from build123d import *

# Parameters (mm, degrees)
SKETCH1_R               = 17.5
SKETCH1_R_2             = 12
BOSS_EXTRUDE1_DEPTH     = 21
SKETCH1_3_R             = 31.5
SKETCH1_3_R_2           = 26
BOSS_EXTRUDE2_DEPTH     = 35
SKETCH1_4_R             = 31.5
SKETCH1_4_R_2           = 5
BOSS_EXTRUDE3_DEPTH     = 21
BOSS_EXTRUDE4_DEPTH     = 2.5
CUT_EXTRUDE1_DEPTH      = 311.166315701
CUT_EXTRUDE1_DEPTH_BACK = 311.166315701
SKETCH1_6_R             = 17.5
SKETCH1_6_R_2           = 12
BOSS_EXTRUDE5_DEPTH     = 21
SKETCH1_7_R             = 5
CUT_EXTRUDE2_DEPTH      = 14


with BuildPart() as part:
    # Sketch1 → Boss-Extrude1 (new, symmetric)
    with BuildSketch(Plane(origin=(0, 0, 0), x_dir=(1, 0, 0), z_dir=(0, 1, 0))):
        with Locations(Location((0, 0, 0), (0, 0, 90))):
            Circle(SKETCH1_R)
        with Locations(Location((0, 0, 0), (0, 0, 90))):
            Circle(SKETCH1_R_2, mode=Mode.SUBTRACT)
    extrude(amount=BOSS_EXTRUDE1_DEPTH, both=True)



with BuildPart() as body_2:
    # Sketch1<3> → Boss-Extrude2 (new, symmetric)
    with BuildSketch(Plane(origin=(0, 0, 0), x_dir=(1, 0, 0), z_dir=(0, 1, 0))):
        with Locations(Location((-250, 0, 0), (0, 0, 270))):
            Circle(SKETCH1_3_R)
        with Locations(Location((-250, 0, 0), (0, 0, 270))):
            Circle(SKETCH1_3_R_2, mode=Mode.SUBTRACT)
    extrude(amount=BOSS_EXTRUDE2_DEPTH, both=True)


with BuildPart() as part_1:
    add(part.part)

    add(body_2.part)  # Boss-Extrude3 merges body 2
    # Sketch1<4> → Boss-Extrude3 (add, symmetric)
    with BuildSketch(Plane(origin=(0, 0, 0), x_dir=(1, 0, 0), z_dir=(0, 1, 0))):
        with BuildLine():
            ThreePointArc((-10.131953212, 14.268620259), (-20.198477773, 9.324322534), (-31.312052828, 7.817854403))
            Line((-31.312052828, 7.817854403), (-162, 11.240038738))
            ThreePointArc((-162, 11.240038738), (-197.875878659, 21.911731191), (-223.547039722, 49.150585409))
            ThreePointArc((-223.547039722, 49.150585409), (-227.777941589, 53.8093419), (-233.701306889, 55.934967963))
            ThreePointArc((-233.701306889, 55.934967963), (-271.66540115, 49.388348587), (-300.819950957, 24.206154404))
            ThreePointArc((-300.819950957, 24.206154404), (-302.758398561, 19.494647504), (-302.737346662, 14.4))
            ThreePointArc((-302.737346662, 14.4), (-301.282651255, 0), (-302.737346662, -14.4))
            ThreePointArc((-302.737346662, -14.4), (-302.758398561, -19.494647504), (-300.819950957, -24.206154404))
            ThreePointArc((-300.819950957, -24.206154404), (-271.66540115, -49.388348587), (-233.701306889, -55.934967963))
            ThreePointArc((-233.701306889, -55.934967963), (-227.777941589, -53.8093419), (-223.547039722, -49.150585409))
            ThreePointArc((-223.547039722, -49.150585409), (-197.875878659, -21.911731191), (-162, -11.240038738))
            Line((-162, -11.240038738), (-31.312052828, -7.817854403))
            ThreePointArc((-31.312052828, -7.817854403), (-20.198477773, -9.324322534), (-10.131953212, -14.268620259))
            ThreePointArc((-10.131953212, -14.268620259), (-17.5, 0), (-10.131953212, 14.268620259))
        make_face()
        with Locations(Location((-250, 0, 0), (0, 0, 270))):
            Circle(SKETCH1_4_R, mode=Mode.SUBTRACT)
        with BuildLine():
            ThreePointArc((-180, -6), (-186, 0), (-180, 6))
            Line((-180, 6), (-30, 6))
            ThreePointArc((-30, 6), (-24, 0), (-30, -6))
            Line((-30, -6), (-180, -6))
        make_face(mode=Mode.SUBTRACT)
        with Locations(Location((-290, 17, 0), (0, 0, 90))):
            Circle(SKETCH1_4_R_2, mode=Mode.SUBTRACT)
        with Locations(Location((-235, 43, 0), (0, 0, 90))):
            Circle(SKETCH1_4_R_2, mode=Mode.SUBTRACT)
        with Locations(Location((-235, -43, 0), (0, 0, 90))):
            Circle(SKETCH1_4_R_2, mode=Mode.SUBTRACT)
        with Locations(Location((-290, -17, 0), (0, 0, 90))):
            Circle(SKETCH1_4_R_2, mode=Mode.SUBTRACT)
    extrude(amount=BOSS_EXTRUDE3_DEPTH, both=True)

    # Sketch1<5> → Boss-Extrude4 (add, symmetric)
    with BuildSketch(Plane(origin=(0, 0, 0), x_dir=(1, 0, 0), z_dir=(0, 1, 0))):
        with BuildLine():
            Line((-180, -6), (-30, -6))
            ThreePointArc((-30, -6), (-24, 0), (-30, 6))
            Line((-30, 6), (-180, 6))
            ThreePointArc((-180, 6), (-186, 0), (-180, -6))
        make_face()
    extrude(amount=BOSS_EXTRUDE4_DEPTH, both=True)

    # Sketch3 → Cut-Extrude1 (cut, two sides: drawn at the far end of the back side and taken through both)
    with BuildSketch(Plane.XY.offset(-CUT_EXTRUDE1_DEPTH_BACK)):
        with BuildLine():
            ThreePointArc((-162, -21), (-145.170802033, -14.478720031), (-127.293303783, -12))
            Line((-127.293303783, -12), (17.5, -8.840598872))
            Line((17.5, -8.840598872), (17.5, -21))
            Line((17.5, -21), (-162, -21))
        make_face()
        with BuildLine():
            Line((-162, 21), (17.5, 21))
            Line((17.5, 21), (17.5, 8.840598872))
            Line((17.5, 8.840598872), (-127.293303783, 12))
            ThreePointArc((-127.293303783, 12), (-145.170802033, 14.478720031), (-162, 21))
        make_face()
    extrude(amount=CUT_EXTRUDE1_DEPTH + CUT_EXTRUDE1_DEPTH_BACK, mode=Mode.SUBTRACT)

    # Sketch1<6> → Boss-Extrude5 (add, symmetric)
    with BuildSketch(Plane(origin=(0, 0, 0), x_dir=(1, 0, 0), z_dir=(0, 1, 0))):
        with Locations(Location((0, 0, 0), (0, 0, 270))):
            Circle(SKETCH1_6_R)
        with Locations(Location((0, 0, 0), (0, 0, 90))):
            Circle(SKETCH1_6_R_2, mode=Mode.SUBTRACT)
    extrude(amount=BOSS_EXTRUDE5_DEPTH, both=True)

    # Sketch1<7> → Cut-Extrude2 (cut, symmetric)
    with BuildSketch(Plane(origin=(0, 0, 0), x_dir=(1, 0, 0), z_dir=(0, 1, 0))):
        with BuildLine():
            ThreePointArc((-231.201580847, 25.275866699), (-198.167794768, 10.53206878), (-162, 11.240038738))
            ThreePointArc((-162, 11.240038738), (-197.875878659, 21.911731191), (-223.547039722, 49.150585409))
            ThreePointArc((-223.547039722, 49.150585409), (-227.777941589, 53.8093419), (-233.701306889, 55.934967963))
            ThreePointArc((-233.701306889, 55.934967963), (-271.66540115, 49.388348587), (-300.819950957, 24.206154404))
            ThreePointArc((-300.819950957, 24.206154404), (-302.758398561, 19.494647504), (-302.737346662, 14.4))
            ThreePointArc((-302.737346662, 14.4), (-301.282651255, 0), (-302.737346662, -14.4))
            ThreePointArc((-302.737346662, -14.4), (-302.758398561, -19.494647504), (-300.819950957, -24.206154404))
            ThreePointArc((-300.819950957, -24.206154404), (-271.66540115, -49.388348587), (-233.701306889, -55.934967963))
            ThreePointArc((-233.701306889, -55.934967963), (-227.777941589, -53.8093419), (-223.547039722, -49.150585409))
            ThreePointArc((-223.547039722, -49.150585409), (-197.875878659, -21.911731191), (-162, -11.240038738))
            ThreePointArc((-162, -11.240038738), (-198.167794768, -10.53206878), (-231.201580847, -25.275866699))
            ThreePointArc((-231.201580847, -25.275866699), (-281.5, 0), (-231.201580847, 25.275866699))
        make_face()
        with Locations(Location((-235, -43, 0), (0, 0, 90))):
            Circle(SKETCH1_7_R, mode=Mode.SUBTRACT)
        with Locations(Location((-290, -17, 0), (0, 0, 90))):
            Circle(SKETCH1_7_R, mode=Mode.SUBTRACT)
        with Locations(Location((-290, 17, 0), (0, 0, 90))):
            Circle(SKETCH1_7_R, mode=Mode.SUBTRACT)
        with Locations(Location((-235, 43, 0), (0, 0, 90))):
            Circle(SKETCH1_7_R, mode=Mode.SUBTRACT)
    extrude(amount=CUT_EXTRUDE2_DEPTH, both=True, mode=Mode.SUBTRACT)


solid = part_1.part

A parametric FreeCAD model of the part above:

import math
import FreeCAD as App
import Part
import Sketcher
Q = App.Units.Quantity

doc = App.newDocument("Part")
body = doc.addObject("PartDesign::Body", "Body")

# Sketch on XZ plane
sketch1 = body.newObject("Sketcher::SketchObject", "Sketch")
sketch1.AttachmentSupport = (doc.getObject("XZ_Plane"), [""])
sketch1.MapMode = "FlatFace"
sketch1.addGeometry([
    Part.Circle(App.Vector(0, 0, 0), App.Vector(0, 0, 1), 17.5),
    Part.Circle(App.Vector(0, 0, 0), App.Vector(0, 0, 1), 12),
], False)
sketch1.addConstraint([
    Sketcher.Constraint("Coincident", 0, 3, -1, 1),
    Sketcher.Constraint("Coincident", 1, 3, -1, 1),
    Sketcher.Constraint("Diameter", 0, Q("35 mm")),
    Sketcher.Constraint("Diameter", 1, Q("24 mm")),
])
pad1 = body.newObject("PartDesign::Pad", "Pad")
pad1.Profile = sketch1
pad1.Length = 42
pad1.Midplane = True
body2 = doc.addObject("PartDesign::Body", "Body001")

# Sketch on XZ plane
sketch2 = body2.newObject("Sketcher::SketchObject", "Sketch001")
sketch2.AttachmentSupport = (doc.getObject("XZ_Plane001"), [""])
sketch2.MapMode = "FlatFace"
sketch2.addGeometry([
    Part.Circle(App.Vector(-250, 0, 0), App.Vector(0, 0, 1), 31.5),
    Part.Circle(App.Vector(-250, 0, 0), App.Vector(0, 0, 1), 26),
], False)
sketch2.addConstraint([
    Sketcher.Constraint("Coincident", 1, 3, 0, 3),
    Sketcher.Constraint("PointOnObject", 0, 3, -1),
    Sketcher.Constraint("Diameter", 0, Q("63 mm")),
    Sketcher.Constraint("Diameter", 1, Q("52 mm")),
    Sketcher.Constraint("DistanceX", 0, 3, -1, 1, Q("250 mm")),
])
pad2 = body2.newObject("PartDesign::Pad", "Pad001")
pad2.Profile = sketch2
pad2.Length = 70
pad2.Midplane = True
body.AllowCompound = True
doc.recompute()

boolean = body.newObject("PartDesign::Boolean", "Boolean")
boolean.Type = "Fuse"
boolean.addObjects([body2])

# Sketch on XZ plane
sketch3 = body.newObject("Sketcher::SketchObject", "Sketch002")
sketch3.AttachmentSupport = (doc.getObject("XZ_Plane"), [""])
sketch3.MapMode = "FlatFace"
sketch3.addGeometry([
    Part.ArcOfCircle(Part.Circle(App.Vector(-30.39586, -42.805861, 0), App.Vector(0, 0, 1), 35), math.radians(54.621957), math.radians(91.5)),  # 0
    Part.LineSegment(App.Vector(-31.312053, -7.817854, 0), App.Vector(-162, -11.240039, 0)),  # 1
    Part.ArcOfCircle(Part.Circle(App.Vector(-160.11526, -83.215366, 0), App.Vector(0, 0, 1), 72), math.radians(91.5), math.radians(151.762859)),  # 2
    Part.ArcOfCircle(Part.Circle(App.Vector(-235, -43, 0), App.Vector(0, 0, 1), 13), math.radians(-84.266618), math.radians(-28.237141)),  # 3
    Part.ArcOfCircle(Part.Circle(App.Vector(-240.894069, 15.704855, 0), App.Vector(0, 0, 1), 72), math.radians(-146.336139), math.radians(-84.266618)),  # 4
    Part.ArcOfCircle(Part.Circle(App.Vector(-290, -17, 0), App.Vector(0, 0, 1), 13), math.radians(168.463041), math.radians(213.663861)),  # 5
    Part.ArcOfCircle(Part.Circle(App.Vector(-373.282651, 0, 0), App.Vector(0, 0, 1), 72), math.radians(-11.536959), math.radians(11.536959)),  # 6
    Part.ArcOfCircle(Part.Circle(App.Vector(-290, 17, 0), App.Vector(0, 0, 1), 13), math.radians(146.336139), math.radians(191.536959)),  # 7
    Part.ArcOfCircle(Part.Circle(App.Vector(-240.894069, -15.704855, 0), App.Vector(0, 0, 1), 72), math.radians(84.266618), math.radians(146.336139)),  # 8
    Part.ArcOfCircle(Part.Circle(App.Vector(-235, 43, 0), App.Vector(0, 0, 1), 13), math.radians(28.237141), math.radians(84.266618)),  # 9
    Part.ArcOfCircle(Part.Circle(App.Vector(-160.11526, 83.215366, 0), App.Vector(0, 0, 1), 72), math.radians(-151.762859), math.radians(-91.5)),  # 10
    Part.LineSegment(App.Vector(-162, 11.240039, 0), App.Vector(-31.312053, 7.817854, 0)),  # 11
    Part.ArcOfCircle(Part.Circle(App.Vector(-30.39586, 42.805861, 0), App.Vector(0, 0, 1), 35), math.radians(-91.5), math.radians(-54.621957)),  # 12
    Part.ArcOfCircle(Part.Circle(App.Vector(0, 0, 0), App.Vector(0, 0, 1), 17.5), math.radians(125.378043), math.radians(234.621957)),  # 13
    Part.Circle(App.Vector(-235, 43, 0), App.Vector(0, 0, 1), 5),  # 14
    Part.Circle(App.Vector(-290, 17, 0), App.Vector(0, 0, 1), 5),  # 15
    Part.Circle(App.Vector(-250, 0, 0), App.Vector(0, 0, 1), 31.5),  # 16
    Part.Circle(App.Vector(-290, -17, 0), App.Vector(0, 0, 1), 5),  # 17
    Part.Circle(App.Vector(-235, -43, 0), App.Vector(0, 0, 1), 5),  # 18
    Part.LineSegment(App.Vector(-30, 6, 0), App.Vector(-180, 6, 0)),  # 19
    Part.ArcOfCircle(Part.Circle(App.Vector(-180, 0, 0), App.Vector(0, 0, 1), 6), math.radians(90), math.radians(270)),  # 20
    Part.LineSegment(App.Vector(-180, -6, 0), App.Vector(-30, -6, 0)),  # 21
    Part.ArcOfCircle(Part.Circle(App.Vector(-30, 0, 0), App.Vector(0, 0, 1), 6), math.radians(-90), math.radians(90)),  # 22
], False)
sketch3.addConstraint([
    Sketcher.Constraint("Tangent", 0, 2, 1, 1),
    Sketcher.Constraint("Tangent", 1, 2, 2, 1),
    Sketcher.Constraint("Tangent", 2, 2, 3, 2),
    Sketcher.Constraint("Tangent", 3, 1, 4, 2),
    Sketcher.Constraint("Tangent", 4, 1, 5, 2),
    Sketcher.Constraint("Tangent", 5, 1, 6, 1),
    Sketcher.Constraint("Tangent", 6, 2, 7, 2),
    Sketcher.Constraint("Tangent", 7, 1, 8, 2),
    Sketcher.Constraint("Tangent", 8, 1, 9, 2),
    Sketcher.Constraint("Tangent", 9, 1, 10, 1),
    Sketcher.Constraint("Tangent", 10, 2, 11, 1),
    Sketcher.Constraint("Tangent", 11, 2, 12, 1),
    Sketcher.Constraint("Tangent", 12, 2, 13, 1),
    Sketcher.Constraint("Tangent", 13, 2, 0, 1),
    Sketcher.Constraint("Tangent", 19, 2, 20, 1),
    Sketcher.Constraint("Tangent", 20, 2, 21, 1),
    Sketcher.Constraint("Tangent", 21, 2, 22, 1),
    Sketcher.Constraint("Tangent", 22, 2, 19, 1),
    Sketcher.Constraint("Horizontal", 19),
    Sketcher.Constraint("Horizontal", 21),
    Sketcher.Constraint("Coincident", 13, 3, -1, 1),
    Sketcher.Constraint("Coincident", 14, 3, 9, 3),
    Sketcher.Constraint("Coincident", 15, 3, 7, 3),
    Sketcher.Constraint("Coincident", 17, 3, 5, 3),
    Sketcher.Constraint("Coincident", 18, 3, 3, 3),
    Sketcher.Constraint("Equal", 2, 4),
    Sketcher.Constraint("Equal", 3, 5),
    Sketcher.Constraint("Equal", 4, 6),
    Sketcher.Constraint("Equal", 5, 7),
    Sketcher.Constraint("Equal", 6, 8),
    Sketcher.Constraint("Equal", 7, 9),
    Sketcher.Constraint("Equal", 8, 10),
    Sketcher.Constraint("Equal", 0, 12),
    Sketcher.Constraint("Equal", 14, 15),
    Sketcher.Constraint("Equal", 15, 17),
    Sketcher.Constraint("Equal", 17, 18),
    Sketcher.Constraint("Symmetric", 5, 3, 7, 3, -1),
    Sketcher.Constraint("Symmetric", 3, 3, 9, 3, -1),
    Sketcher.Constraint("Symmetric", 1, 2, 10, 2, -1),
    Sketcher.Constraint("PointOnObject", 16, 3, -1),
    Sketcher.Constraint("PointOnObject", 20, 3, -1),
    Sketcher.Constraint("Diameter", 14, Q("10 mm")),
    Sketcher.Constraint("Diameter", 16, Q("63 mm")),
    Sketcher.Constraint("Radius", 0, Q("35 mm")),
    Sketcher.Constraint("Radius", 2, Q("72 mm")),
    Sketcher.Constraint("Radius", 3, Q("13 mm")),
    Sketcher.Constraint("Radius", 20, Q("6 mm")),
    Sketcher.Constraint("Radius", 13, Q("17.5 mm")),
    Sketcher.Constraint("DistanceX", 19, 2, 19, 1, Q("150 mm")),
    Sketcher.Constraint("DistanceX", 3, 3, -1, 1, Q("235 mm")),
    Sketcher.Constraint("DistanceY", 3, 3, -1, 1, Q("43 mm")),
    Sketcher.Constraint("DistanceX", 5, 3, -1, 1, Q("290 mm")),
    Sketcher.Constraint("DistanceY", 5, 3, -1, 1, Q("17 mm")),
    Sketcher.Constraint("DistanceX", 16, 3, -1, 1, Q("250 mm")),
    Sketcher.Constraint("DistanceX", 20, 3, -1, 1, Q("180 mm")),
    Sketcher.Constraint("DistanceX", 1, 2, -1, 1, Q("162 mm")),
    Sketcher.Constraint("Angle", 1, Q("-178.5 deg")),
])
pad3 = body.newObject("PartDesign::Pad", "Pad002")
pad3.Profile = sketch3
pad3.Length = 42
pad3.Midplane = True

# Sketch on XZ plane
sketch4 = body.newObject("Sketcher::SketchObject", "Sketch003")
sketch4.AttachmentSupport = (doc.getObject("XZ_Plane"), [""])
sketch4.MapMode = "FlatFace"
sketch4.addGeometry([
    Part.LineSegment(App.Vector(-180, 6, 0), App.Vector(-30, 6, 0)),
    Part.ArcOfCircle(Part.Circle(App.Vector(-30, 0, 0), App.Vector(0, 0, 1), 6), math.radians(-90), math.radians(90)),
    Part.LineSegment(App.Vector(-30, -6, 0), App.Vector(-180, -6, 0)),
    Part.ArcOfCircle(Part.Circle(App.Vector(-180, 0, 0), App.Vector(0, 0, 1), 6), math.radians(90), math.radians(270)),
], False)
sketch4.addConstraint([
    Sketcher.Constraint("Tangent", 0, 2, 1, 2),
    Sketcher.Constraint("Tangent", 1, 1, 2, 1),
    Sketcher.Constraint("Tangent", 2, 2, 3, 2),
    Sketcher.Constraint("Tangent", 3, 1, 0, 1),
    Sketcher.Constraint("Horizontal", 0),
    Sketcher.Constraint("Horizontal", 2),
    Sketcher.Constraint("PointOnObject", 1, 3, -1),
    Sketcher.Constraint("Radius", 1, Q("6 mm")),
    Sketcher.Constraint("DistanceX", 0, 1, 0, 2, Q("150 mm")),
    Sketcher.Constraint("DistanceX", 1, 3, -1, 1, Q("30 mm")),
])
pad4 = body.newObject("PartDesign::Pad", "Pad003")
pad4.Profile = sketch4
pad4.Length = 5
pad4.Midplane = True

# Sketch on XY plane
sketch5 = body.newObject("Sketcher::SketchObject", "Sketch004")
sketch5.AttachmentSupport = (doc.getObject("XY_Plane"), [""])
sketch5.MapMode = "FlatFace"
sketch5.addGeometry([
    Part.ArcOfCircle(Part.Circle(App.Vector(-125.591743, -89.981438, 0), App.Vector(0, 0, 1), 78), math.radians(91.25), math.radians(117.824998)),  # 0
    Part.LineSegment(App.Vector(-162, -21, 0), App.Vector(17.5, -21, 0)),  # 1
    Part.LineSegment(App.Vector(17.5, -21, 0), App.Vector(17.5, -8.840599, 0)),  # 2
    Part.LineSegment(App.Vector(17.5, -8.840599, 0), App.Vector(-127.293304, -12, 0)),  # 3
    Part.LineSegment(App.Vector(17.5, 21, 0), App.Vector(-162, 21, 0)),  # 4
    Part.ArcOfCircle(Part.Circle(App.Vector(-125.591743, 89.981438, 0), App.Vector(0, 0, 1), 78), math.radians(-117.824998), math.radians(-91.25)),  # 5
    Part.LineSegment(App.Vector(-127.293304, 12, 0), App.Vector(17.5, 8.840599, 0)),  # 6
    Part.LineSegment(App.Vector(17.5, 8.840599, 0), App.Vector(17.5, 21, 0)),  # 7
], False)
sketch5.addConstraint([
    Sketcher.Constraint("Coincident", 0, 2, 1, 1),
    Sketcher.Constraint("Coincident", 1, 2, 2, 1),
    Sketcher.Constraint("Coincident", 2, 2, 3, 1),
    Sketcher.Constraint("Tangent", 3, 2, 0, 1),
    Sketcher.Constraint("Coincident", 4, 2, 5, 1),
    Sketcher.Constraint("Tangent", 5, 2, 6, 1),
    Sketcher.Constraint("Coincident", 6, 2, 7, 1),
    Sketcher.Constraint("Coincident", 7, 2, 4, 1),
    Sketcher.Constraint("Horizontal", 1),
    Sketcher.Constraint("Vertical", 2),
    Sketcher.Constraint("Horizontal", 4),
    Sketcher.Constraint("Vertical", 7),
    Sketcher.Constraint("Equal", 0, 5),
    Sketcher.Constraint("Symmetric", 0, 3, 5, 3, -1),
    Sketcher.Constraint("Symmetric", 2, 2, 6, 2, -1),
    Sketcher.Constraint("Vertical", 0, 2, 4, 2),
    Sketcher.Constraint("Radius", 0, Q("78 mm")),
    Sketcher.Constraint("DistanceX", 1, 1, 1, 2, Q("179.5 mm")),
    Sketcher.Constraint("DistanceX", 0, 2, -1, 1, Q("162 mm")),
    Sketcher.Constraint("DistanceY", 0, 2, -1, 1, Q("21 mm")),
    Sketcher.Constraint("DistanceY", 3, 2, -1, 1, Q("12 mm")),
    Sketcher.Constraint("Angle", 3, Q("-178.75 deg")),
])
pocket1 = body.newObject("PartDesign::Pocket", "Pocket")
pocket1.Profile = sketch5
pocket1.Type = "ThroughAll"
pocket1.Midplane = True

# Sketch on XZ plane
sketch6 = body.newObject("Sketcher::SketchObject", "Sketch005")
sketch6.AttachmentSupport = (doc.getObject("XZ_Plane"), [""])
sketch6.MapMode = "FlatFace"
sketch6.addGeometry([
    Part.Circle(App.Vector(0, 0, 0), App.Vector(0, 0, 1), 17.5),
    Part.Circle(App.Vector(0, 0, 0), App.Vector(0, 0, 1), 12),
], False)
sketch6.addConstraint([
    Sketcher.Constraint("Coincident", 0, 3, -1, 1),
    Sketcher.Constraint("Coincident", 1, 3, -1, 1),
    Sketcher.Constraint("Diameter", 0, Q("35 mm")),
    Sketcher.Constraint("Diameter", 1, Q("24 mm")),
])
pad5 = body.newObject("PartDesign::Pad", "Pad004")
pad5.Profile = sketch6
pad5.Length = 42
pad5.Midplane = True

# Sketch on XZ plane
sketch7 = body.newObject("Sketcher::SketchObject", "Sketch006")
sketch7.AttachmentSupport = (doc.getObject("XZ_Plane"), [""])
sketch7.MapMode = "FlatFace"
sketch7.addGeometry([
    Part.ArcOfCircle(Part.Circle(App.Vector(-181.669238, -91.875769, 0), App.Vector(0, 0, 1), 83), math.radians(76.291706), math.radians(126.639287)),  # 0
    Part.ArcOfCircle(Part.Circle(App.Vector(-160.11526, -83.215366, 0), App.Vector(0, 0, 1), 72), math.radians(91.5), math.radians(151.762859)),  # 1
    Part.ArcOfCircle(Part.Circle(App.Vector(-235, -43, 0), App.Vector(0, 0, 1), 13), math.radians(-84.266618), math.radians(-28.237141)),  # 2
    Part.ArcOfCircle(Part.Circle(App.Vector(-240.894069, 15.704855, 0), App.Vector(0, 0, 1), 72), math.radians(-146.336139), math.radians(-84.266618)),  # 3
    Part.ArcOfCircle(Part.Circle(App.Vector(-290, -17, 0), App.Vector(0, 0, 1), 13), math.radians(168.463041), math.radians(213.663861)),  # 4
    Part.ArcOfCircle(Part.Circle(App.Vector(-373.282651, 0, 0), App.Vector(0, 0, 1), 72), math.radians(-11.536959), math.radians(11.536959)),  # 5
    Part.ArcOfCircle(Part.Circle(App.Vector(-290, 17, 0), App.Vector(0, 0, 1), 13), math.radians(146.336139), math.radians(191.536959)),  # 6
    Part.ArcOfCircle(Part.Circle(App.Vector(-240.894069, -15.704855, 0), App.Vector(0, 0, 1), 72), math.radians(84.266618), math.radians(146.336139)),  # 7
    Part.ArcOfCircle(Part.Circle(App.Vector(-235, 43, 0), App.Vector(0, 0, 1), 13), math.radians(28.237141), math.radians(84.266618)),  # 8
    Part.ArcOfCircle(Part.Circle(App.Vector(-160.11526, 83.215366, 0), App.Vector(0, 0, 1), 72), math.radians(-151.762859), math.radians(-91.5)),  # 9
    Part.ArcOfCircle(Part.Circle(App.Vector(-181.669238, 91.875769, 0), App.Vector(0, 0, 1), 83), math.radians(-126.639287), math.radians(-76.291706)),  # 10
    Part.ArcOfCircle(Part.Circle(App.Vector(-250, 0, 0), App.Vector(0, 0, 1), 31.5), math.radians(53.360713), math.radians(306.639287)),  # 11
    Part.Circle(App.Vector(-290, 17, 0), App.Vector(0, 0, 1), 5),  # 12
    Part.Circle(App.Vector(-235, 43, 0), App.Vector(0, 0, 1), 5),  # 13
    Part.Circle(App.Vector(-290, -17, 0), App.Vector(0, 0, 1), 5),  # 14
    Part.Circle(App.Vector(-235, -43, 0), App.Vector(0, 0, 1), 5),  # 15
], False)
sketch7.addConstraint([
    Sketcher.Constraint("Coincident", 0, 1, 1, 1),
    Sketcher.Constraint("Tangent", 1, 2, 2, 2),
    Sketcher.Constraint("Tangent", 2, 1, 3, 2),
    Sketcher.Constraint("Tangent", 3, 1, 4, 2),
    Sketcher.Constraint("Tangent", 4, 1, 5, 1),
    Sketcher.Constraint("Tangent", 5, 2, 6, 2),
    Sketcher.Constraint("Tangent", 6, 1, 7, 2),
    Sketcher.Constraint("Tangent", 7, 1, 8, 2),
    Sketcher.Constraint("Tangent", 8, 1, 9, 1),
    Sketcher.Constraint("Coincident", 9, 2, 10, 2),
    Sketcher.Constraint("Tangent", 10, 1, 11, 1),
    Sketcher.Constraint("Tangent", 11, 2, 0, 2),
    Sketcher.Constraint("Coincident", 12, 3, 6, 3),
    Sketcher.Constraint("Coincident", 13, 3, 8, 3),
    Sketcher.Constraint("Coincident", 14, 3, 4, 3),
    Sketcher.Constraint("Coincident", 15, 3, 2, 3),
    Sketcher.Constraint("Equal", 1, 3),
    Sketcher.Constraint("Equal", 2, 4),
    Sketcher.Constraint("Equal", 3, 5),
    Sketcher.Constraint("Equal", 4, 6),
    Sketcher.Constraint("Equal", 5, 7),
    Sketcher.Constraint("Equal", 6, 8),
    Sketcher.Constraint("Equal", 7, 9),
    Sketcher.Constraint("Equal", 0, 10),
    Sketcher.Constraint("Equal", 12, 13),
    Sketcher.Constraint("Equal", 13, 14),
    Sketcher.Constraint("Equal", 14, 15),
    Sketcher.Constraint("Symmetric", 4, 3, 6, 3, -1),
    Sketcher.Constraint("Symmetric", 2, 3, 8, 3, -1),
    Sketcher.Constraint("Symmetric", 0, 3, 10, 3, -1),
    Sketcher.Constraint("Vertical", 1, 3, 9, 3),
    Sketcher.Constraint("Diameter", 12, Q("10 mm")),
    Sketcher.Constraint("Radius", 0, Q("83 mm")),
    Sketcher.Constraint("Radius", 1, Q("72 mm")),
    Sketcher.Constraint("Radius", 2, Q("13 mm")),
    Sketcher.Constraint("Radius", 11, Q("31.5 mm")),
    Sketcher.Constraint("DistanceX", 2, 3, -1, 1, Q("235 mm")),
    Sketcher.Constraint("DistanceY", 2, 3, -1, 1, Q("43 mm")),
    Sketcher.Constraint("DistanceX", 4, 3, -1, 1, Q("290 mm")),
    Sketcher.Constraint("DistanceY", 4, 3, -1, 1, Q("17 mm")),
    Sketcher.Constraint("DistanceX", 11, 3, -1, 1, Q("250 mm")),
    Sketcher.Constraint("DistanceX", 0, 1, -1, 1, Q("162 mm")),
    Sketcher.Constraint("DistanceX", 1, 2, 0, 3, Q("41.877801 mm")),
])
pocket2 = body.newObject("PartDesign::Pocket", "Pocket001")
pocket2.Profile = sketch7
pocket2.Length = 28
pocket2.Midplane = True

doc.recompute()
